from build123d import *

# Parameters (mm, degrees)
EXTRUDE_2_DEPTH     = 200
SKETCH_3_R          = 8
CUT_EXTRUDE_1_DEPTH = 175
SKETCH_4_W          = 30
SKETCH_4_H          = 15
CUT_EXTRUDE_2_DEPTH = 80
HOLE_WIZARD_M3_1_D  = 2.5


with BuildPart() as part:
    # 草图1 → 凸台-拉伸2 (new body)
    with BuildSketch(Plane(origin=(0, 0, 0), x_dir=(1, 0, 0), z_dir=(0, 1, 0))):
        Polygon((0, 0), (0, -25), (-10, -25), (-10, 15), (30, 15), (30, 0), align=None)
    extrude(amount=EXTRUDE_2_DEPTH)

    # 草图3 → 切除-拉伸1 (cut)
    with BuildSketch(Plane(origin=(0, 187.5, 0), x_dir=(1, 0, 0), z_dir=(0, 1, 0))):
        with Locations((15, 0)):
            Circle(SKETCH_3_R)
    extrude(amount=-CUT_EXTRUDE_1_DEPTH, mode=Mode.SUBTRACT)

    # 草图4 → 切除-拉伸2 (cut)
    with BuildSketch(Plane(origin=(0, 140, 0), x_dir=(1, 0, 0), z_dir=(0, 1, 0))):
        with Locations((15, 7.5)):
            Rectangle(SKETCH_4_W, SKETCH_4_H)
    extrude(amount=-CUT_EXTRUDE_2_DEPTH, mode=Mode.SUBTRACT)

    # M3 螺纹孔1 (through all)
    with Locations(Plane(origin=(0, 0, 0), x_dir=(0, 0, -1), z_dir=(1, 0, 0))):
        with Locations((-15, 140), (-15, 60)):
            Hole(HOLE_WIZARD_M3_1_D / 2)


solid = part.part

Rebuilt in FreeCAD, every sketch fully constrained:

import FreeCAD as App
import Part
import Sketcher

V = App.Vector
Q = App.Units.Quantity

doc = App.newDocument("Part")
params = doc.addObject("Spreadsheet::Sheet", "Params")
for row, (alias, value) in enumerate([
    ("sketch1_width", "30 mm"),
    ("sketch1_width2", "40 mm"),
    ("sketch1_height", "25 mm"),
    ("pad1_length", "200 mm"),
    ("sketch2_diameter", "16 mm"),
    ("pocket1_length", "175 mm"),
    ("sketch3_width", "30 mm"),
    ("sketch3_height", "15 mm"),
    ("pocket2_length", "80 mm"),
    ("sketch4_diameter", "2.5 mm"),
    ("hole_diameter", "2.5 mm"),
], start=1):
    params.set(f"A{row}", alias)
    params.set(f"B{row}", "=" + value)
    params.setAlias(f"B{row}", alias)

body = doc.addObject("PartDesign::Body", "Body")

# Sketch on XZ plane
sketch1 = doc.addObject("Sketcher::SketchObject", "Sketch")
body.addObject(sketch1)
sketch1.AttachmentSupport = (doc.XZ_Plane, [""])
sketch1.MapMode = "FlatFace"
sketch1.addGeometry([
    Part.LineSegment(V(0, 25, 0), V(0, 0, 0)),  # 0
    Part.LineSegment(V(0, 0, 0), V(30, 0, 0)),  # 1
    Part.LineSegment(V(30, 0, 0), V(30, -15, 0)),  # 2
    Part.LineSegment(V(30, -15, 0), V(-10, -15, 0)),  # 3
    Part.LineSegment(V(-10, -15, 0), V(-10, 25, 0)),  # 4
    Part.LineSegment(V(-10, 25, 0), V(0, 25, 0)),  # 5
], False)
sketch1.addConstraint([
    Sketcher.Constraint("Coincident", 0, 2, 1, 1),
    Sketcher.Constraint("Coincident", 1, 2, 2, 1),
    Sketcher.Constraint("Coincident", 2, 2, 3, 1),
    Sketcher.Constraint("Coincident", 3, 2, 4, 1),
    Sketcher.Constraint("Coincident", 4, 2, 5, 1),
    Sketcher.Constraint("Coincident", 5, 2, 0, 1),
    Sketcher.Constraint("Vertical", 0),
    Sketcher.Constraint("Horizontal", 1),
    Sketcher.Constraint("Vertical", 2),
    Sketcher.Constraint("Horizontal", 3),
    Sketcher.Constraint("Vertical", 4),
    Sketcher.Constraint("Horizontal", 5),
    Sketcher.Constraint("Coincident", 0, 2, -1, 1),
    Sketcher.Constraint("Equal", 3, 4),
    Sketcher.Constraint("DistanceX", 1, 1, 1, 2, Q("30 mm")),
    Sketcher.Constraint("DistanceX", 3, 2, 3, 1, Q("40 mm")),
    Sketcher.Constraint("DistanceY", 0, 2, 0, 1, Q("25 mm")),
])
sketch1.setExpression("Constraints[14]", "Params.sketch1_width")
sketch1.setExpression("Constraints[15]", "Params.sketch1_width2")
sketch1.setExpression("Constraints[16]", "Params.sketch1_height")
pad1 = doc.addObject("PartDesign::Pad", "Pad")
body.addObject(pad1)
pad1.Profile = sketch1
pad1.setExpression("Length", "Params.pad1_length")
pad1.Reversed = True

# Sketch on XZ plane
sketch2 = doc.addObject("Sketcher::SketchObject", "Sketch001")
body.addObject(sketch2)
sketch2.AttachmentSupport = (doc.XZ_Plane, [""])
sketch2.MapMode = "FlatFace"
sketch2.AttachmentOffset = App.Placement(V(0, 0, -187.5), App.Rotation())
sketch2.addGeometry(Part.Circle(V(15, 0, 0), V(0, 0, 1), 8), False)
sketch2.addConstraint([
    Sketcher.Constraint("PointOnObject", 0, 3, -1),
    Sketcher.Constraint("Diameter", 0, Q("16 mm")),
    Sketcher.Constraint("DistanceX", -1, 1, 0, 3, Q("15 mm")),
])
sketch2.setExpression("Constraints[1]", "Params.sketch2_diameter")
pocket1 = doc.addObject("PartDesign::Pocket", "Pocket")
body.addObject(pocket1)
pocket1.Profile = sketch2
pocket1.setExpression("Length", "Params.pocket1_length")
pocket1.Reversed = True

# Sketch on XZ plane
sketch3 = doc.addObject("Sketcher::SketchObject", "Sketch002")
body.addObject(sketch3)
sketch3.AttachmentSupport = (doc.XZ_Plane, [""])
sketch3.MapMode = "FlatFace"
sketch3.AttachmentOffset = App.Placement(V(0, 0, -140), App.Rotation())
sketch3.addGeometry([
    Part.LineSegment(V(0, -15, 0), V(0, 0, 0)),
    Part.LineSegment(V(0, 0, 0), V(30, 0, 0)),
    Part.LineSegment(V(30, 0, 0), V(30, -15, 0)),
    Part.LineSegment(V(30, -15, 0), V(0, -15, 0)),
], False)
sketch3.addConstraint([
    Sketcher.Constraint("Coincident", 0, 2, 1, 1),
    Sketcher.Constraint("Coincident", 1, 2, 2, 1),
    Sketcher.Constraint("Coincident", 2, 2, 3, 1),
    Sketcher.Constraint("Coincident", 3, 2, 0, 1),
    Sketcher.Constraint("Vertical", 0),
    Sketcher.Constraint("Horizontal", 1),
    Sketcher.Constraint("Vertical", 2),
    Sketcher.Constraint("Horizontal", 3),
    Sketcher.Constraint("Coincident", 0, 2, -1, 1),
    Sketcher.Constraint("DistanceX", 1, 1, 1, 2, Q("30 mm")),
    Sketcher.Constraint("DistanceY", 0, 1, 0, 2, Q("15 mm")),
])
sketch3.setExpression("Constraints[9]", "Params.sketch3_width")
sketch3.setExpression("Constraints[10]", "Params.sketch3_height")
pocket2 = doc.addObject("PartDesign::Pocket", "Pocket001")
body.addObject(pocket2)
pocket2.Profile = sketch3
pocket2.setExpression("Length", "Params.pocket2_length")
pocket2.Reversed = True

# Sketch on YZ plane
sketch4 = doc.addObject("Sketcher::SketchObject", "Sketch003")
body.addObject(sketch4)
sketch4.AttachmentSupport = (doc.YZ_Plane, [""])
sketch4.MapMode = "FlatFace"
sketch4.addGeometry([
    Part.Circle(V(140, 15, 0), V(0, 0, 1), 1.25),
    Part.Circle(V(60, 15, 0), V(0, 0, 1), 1.25),
], False)
sketch4.addConstraint([
    Sketcher.Constraint("Equal", 0, 1),
    Sketcher.Constraint("Horizontal", 0, 3, 1, 3),
    Sketcher.Constraint("Diameter", 0, Q("2.5 mm")),
    Sketcher.Constraint("DistanceX", -1, 1, 0, 3, Q("140 mm")),
    Sketcher.Constraint("DistanceY", -1, 1, 0, 3, Q("15 mm")),
    Sketcher.Constraint("DistanceX", -1, 1, 1, 3, Q("60 mm")),
])
sketch4.setExpression("Constraints[2]", "Params.sketch4_diameter")
doc.recompute()
hole = doc.addObject("PartDesign::Hole", "Hole")
body.addObject(hole)
hole.Profile = sketch4
hole.ThreadType = "None"
hole.setExpression("Diameter", "Params.hole_diameter")
hole.DepthType = "ThroughAll"

doc.recompute()
